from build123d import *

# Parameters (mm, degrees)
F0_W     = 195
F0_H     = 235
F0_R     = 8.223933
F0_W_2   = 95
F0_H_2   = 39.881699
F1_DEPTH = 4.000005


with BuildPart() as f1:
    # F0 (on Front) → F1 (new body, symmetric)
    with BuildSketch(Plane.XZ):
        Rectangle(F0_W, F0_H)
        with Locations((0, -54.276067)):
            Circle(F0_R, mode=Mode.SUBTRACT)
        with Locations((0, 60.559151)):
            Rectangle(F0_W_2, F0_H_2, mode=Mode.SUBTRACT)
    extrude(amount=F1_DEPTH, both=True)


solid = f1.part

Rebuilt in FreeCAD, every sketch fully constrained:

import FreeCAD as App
import Part
import Sketcher

V = App.Vector

doc = App.newDocument("Part")
body = doc.addObject("PartDesign::Body", "Body")

sketch1 = body.newObject("Sketcher::SketchObject", "Sketch")
sketch1.AttachmentSupport = (doc.getObject("XZ_Plane"), [""])
sketch1.MapMode = "FlatFace"
sketch1.addGeometry(Part.LineSegment(V(-98, 118, 0), V(-98, -118, 0)), False)
sketch1.addGeometry(Part.LineSegment(V(-98, -118, 0), V(98, -118, 0)), False)
sketch1.addGeometry(Part.LineSegment(V(98, -118, 0), V(98, 118, 0)), False)
sketch1.addGeometry(Part.LineSegment(V(98, 118, 0), V(-98, 118, 0)), False)
sketch1.addGeometry(Part.Circle(V(0, -54, 0), V(0, 0, 1), 8), False)
sketch1.addGeometry(Part.LineSegment(V(48, 41, 0), V(-48, 41, 0)), False)
sketch1.addGeometry(Part.LineSegment(V(-48, 41, 0), V(-48, 81, 0)), False)
sketch1.addGeometry(Part.LineSegment(V(-48, 81, 0), V(48, 81, 0)), False)
sketch1.addGeometry(Part.LineSegment(V(48, 81, 0), V(48, 41, 0)), False)
sketch1.addConstraint(Sketcher.Constraint("Coincident", 0, 2, 1, 1))
sketch1.addConstraint(Sketcher.Constraint("Coincident", 1, 2, 2, 1))
sketch1.addConstraint(Sketcher.Constraint("Coincident", 2, 2, 3, 1))
sketch1.addConstraint(Sketcher.Constraint("Coincident", 3, 2, 0, 1))
sketch1.addConstraint(Sketcher.Constraint("Coincident", 5, 2, 6, 1))
sketch1.addConstraint(Sketcher.Constraint("Coincident", 6, 2, 7, 1))
sketch1.addConstraint(Sketcher.Constraint("Coincident", 7, 2, 8, 1))
sketch1.addConstraint(Sketcher.Constraint("Coincident", 8, 2, 5, 1))
sketch1.addConstraint(Sketcher.Constraint("Vertical", 0))
sketch1.addConstraint(Sketcher.Constraint("Horizontal", 1))
sketch1.addConstraint(Sketcher.Constraint("Vertical", 2))
sketch1.addConstraint(Sketcher.Constraint("Horizontal", 3))
sketch1.addConstraint(Sketcher.Constraint("Horizontal", 5))
sketch1.addConstraint(Sketcher.Constraint("Vertical", 6))
sketch1.addConstraint(Sketcher.Constraint("Horizontal", 7))
sketch1.addConstraint(Sketcher.Constraint("Vertical", 8))
sketch1.addConstraint(Sketcher.Constraint("Symmetric", 0, 2, 2, 2, -1, 1))
sketch1.addConstraint(Sketcher.Constraint("PointOnObject", 4, 3, -2))
sketch1.addConstraint(Sketcher.Constraint("DistanceX", 1, 1, 1, 2, 195.0))
sketch1.addConstraint(Sketcher.Constraint("DistanceX", 5, 2, 5, 1, 95.0))
sketch1.addConstraint(Sketcher.Constraint("DistanceY", 0, 2, 0, 1, 235.0))
sketch1.addConstraint(Sketcher.Constraint("DistanceX", 3, 2, 5, 2, 50.0))
sketch1.addConstraint(Sketcher.Constraint("DistanceY", 6, 2, 3, 2, 37.0))
sketch1.addConstraint(Sketcher.Constraint("Diameter", 4, 16.447866))
sketch1.addConstraint(Sketcher.Constraint("DistanceY", 6, 1, 6, 2, 39.881699))
sketch1.addConstraint(Sketcher.Constraint("DistanceY", 4, 3, 5, 2, 94.894368))
pad1 = body.newObject("PartDesign::Pad", "Pad")
pad1.Profile = sketch1
pad1.Length = 8.00001
pad1.Midplane = True

doc.recompute()
